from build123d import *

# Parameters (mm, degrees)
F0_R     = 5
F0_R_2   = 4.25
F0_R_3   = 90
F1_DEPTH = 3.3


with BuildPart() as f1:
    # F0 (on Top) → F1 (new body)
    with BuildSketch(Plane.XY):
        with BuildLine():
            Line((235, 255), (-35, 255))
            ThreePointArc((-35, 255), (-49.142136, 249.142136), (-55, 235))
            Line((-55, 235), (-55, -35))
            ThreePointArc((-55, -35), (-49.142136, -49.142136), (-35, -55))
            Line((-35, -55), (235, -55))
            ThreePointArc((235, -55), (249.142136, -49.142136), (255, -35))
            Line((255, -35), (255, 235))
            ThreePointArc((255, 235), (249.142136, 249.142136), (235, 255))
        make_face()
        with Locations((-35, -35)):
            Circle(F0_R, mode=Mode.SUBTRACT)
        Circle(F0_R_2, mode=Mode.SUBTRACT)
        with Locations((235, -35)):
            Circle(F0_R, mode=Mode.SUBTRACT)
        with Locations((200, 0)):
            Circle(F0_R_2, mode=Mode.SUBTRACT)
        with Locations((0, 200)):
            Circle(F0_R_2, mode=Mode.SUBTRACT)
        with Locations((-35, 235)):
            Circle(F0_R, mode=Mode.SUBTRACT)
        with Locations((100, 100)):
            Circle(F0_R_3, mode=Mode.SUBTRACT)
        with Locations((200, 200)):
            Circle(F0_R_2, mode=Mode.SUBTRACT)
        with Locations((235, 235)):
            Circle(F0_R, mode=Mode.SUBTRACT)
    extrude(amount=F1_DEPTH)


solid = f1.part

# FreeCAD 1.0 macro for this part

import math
import FreeCAD as App
import Part
import Sketcher
Q = App.Units.Quantity

doc = App.newDocument("Part")
body = doc.addObject("PartDesign::Body", "Body")

# Sketch on XY plane
sketch1 = body.newObject("Sketcher::SketchObject", "Sketch")
sketch1.AttachmentSupport = (doc.getObject("XY_Plane"), [""])
sketch1.MapMode = "FlatFace"
sketch1.addGeometry(Part.LineSegment(App.Vector(235, 255, 0), App.Vector(-35, 255, 0)), False)
sketch1.addGeometry(Part.ArcOfCircle(Part.Circle(App.Vector(-35, 235, 0), App.Vector(0, 0, 1), 20), math.radians(90), math.radians(180)), False)
sketch1.addGeometry(Part.LineSegment(App.Vector(-55, 235, 0), App.Vector(-55, -35, 0)), False)
sketch1.addGeometry(Part.ArcOfCircle(Part.Circle(App.Vector(-35, -35, 0), App.Vector(0, 0, 1), 20), math.radians(180), math.radians(270)), False)
sketch1.addGeometry(Part.LineSegment(App.Vector(-35, -55, 0), App.Vector(235, -55, 0)), False)
sketch1.addGeometry(Part.ArcOfCircle(Part.Circle(App.Vector(235, -35, 0), App.Vector(0, 0, 1), 20), math.radians(-90), math.radians(0)), False)
sketch1.addGeometry(Part.LineSegment(App.Vector(255, -35, 0), App.Vector(255, 235, 0)), False)
sketch1.addGeometry(Part.ArcOfCircle(Part.Circle(App.Vector(235, 235, 0), App.Vector(0, 0, 1), 20), math.radians(0), math.radians(90)), False)
sketch1.addGeometry(Part.Circle(App.Vector(-35, -35, 0), App.Vector(0, 0, 1), 5), False)
sketch1.addGeometry(Part.Circle(App.Vector(0, 0, 0), App.Vector(0, 0, 1), 4.2), False)
sketch1.addGeometry(Part.Circle(App.Vector(235, -35, 0), App.Vector(0, 0, 1), 5), False)
sketch1.addGeometry(Part.Circle(App.Vector(200, 0, 0), App.Vector(0, 0, 1), 4.2), False)
sketch1.addGeometry(Part.Circle(App.Vector(0, 200, 0), App.Vector(0, 0, 1), 4.2), False)
sketch1.addGeometry(Part.Circle(App.Vector(-35, 235, 0), App.Vector(0, 0, 1), 5), False)
sketch1.addGeometry(Part.Circle(App.Vector(100, 100, 0), App.Vector(0, 0, 1), 90), False)
sketch1.addGeometry(Part.Circle(App.Vector(200, 200, 0), App.Vector(0, 0, 1), 4.2), False)
sketch1.addGeometry(Part.Circle(App.Vector(235, 235, 0), App.Vector(0, 0, 1), 5), False)
sketch1.addConstraint(Sketcher.Constraint("Tangent", 0, 2, 1, 1))
sketch1.addConstraint(Sketcher.Constraint("Tangent", 1, 2, 2, 1))
sketch1.addConstraint(Sketcher.Constraint("Tangent", 2, 2, 3, 1))
sketch1.addConstraint(Sketcher.Constraint("Tangent", 3, 2, 4, 1))
sketch1.addConstraint(Sketcher.Constraint("Tangent", 4, 2, 5, 1))
sketch1.addConstraint(Sketcher.Constraint("Tangent", 5, 2, 6, 1))
sketch1.addConstraint(Sketcher.Constraint("Tangent", 6, 2, 7, 1))
sketch1.addConstraint(Sketcher.Constraint("Tangent", 7, 2, 0, 1))
sketch1.addConstraint(Sketcher.Constraint("Horizontal", 0))
sketch1.addConstraint(Sketcher.Constraint("Vertical", 2))
sketch1.addConstraint(Sketcher.Constraint("Horizontal", 4))
sketch1.addConstraint(Sketcher.Constraint("Vertical", 6))
sketch1.addConstraint(Sketcher.Constraint("Coincident", 9, 3, -1, 1))
sketch1.addConstraint(Sketcher.Constraint("Coincident", 8, 3, 3, 3))
sketch1.addConstraint(Sketcher.Constraint("Coincident", 10, 3, 5, 3))
sketch1.addConstraint(Sketcher.Constraint("Coincident", 13, 3, 1, 3))
sketch1.addConstraint(Sketcher.Constraint("Coincident", 16, 3, 7, 3))
sketch1.addConstraint(Sketcher.Constraint("Equal", 1, 3))
sketch1.addConstraint(Sketcher.Constraint("Equal", 3, 5))
sketch1.addConstraint(Sketcher.Constraint("Equal", 5, 7))
sketch1.addConstraint(Sketcher.Constraint("Equal", 8, 10))
sketch1.addConstraint(Sketcher.Constraint("Equal", 9, 11))
sketch1.addConstraint(Sketcher.Constraint("Equal", 11, 12))
sketch1.addConstraint(Sketcher.Constraint("Equal", 10, 13))
sketch1.addConstraint(Sketcher.Constraint("Equal", 12, 15))
sketch1.addConstraint(Sketcher.Constraint("Equal", 13, 16))
sketch1.addConstraint(Sketcher.Constraint("PointOnObject", 11, 3, -1))
sketch1.addConstraint(Sketcher.Constraint("PointOnObject", 12, 3, -2))
sketch1.addConstraint(Sketcher.Constraint("Horizontal", 12, 3, 15, 3))
sketch1.addConstraint(Sketcher.Constraint("Vertical", 11, 3, 15, 3))
sketch1.addConstraint(Sketcher.Constraint("Equal", 4, 2))
sketch1.addConstraint(Sketcher.Constraint("Diameter", 8, Q("10 mm")))
sketch1.addConstraint(Sketcher.Constraint("Diameter", 14, Q("180 mm")))
sketch1.addConstraint(Sketcher.Constraint("Radius", 1, Q("19.999999 mm")))
sketch1.addConstraint(Sketcher.Constraint("Diameter", 9, Q("8.5 mm")))
sketch1.addConstraint(Sketcher.Constraint("DistanceX", 0, 2, 0, 1, Q("270 mm")))
sketch1.addConstraint(Sketcher.Constraint("DistanceX", 1, 3, -1, 1, Q("35.000001 mm")))
sketch1.addConstraint(Sketcher.Constraint("DistanceY", -1, 1, 1, 3, Q("235.000001 mm")))
sketch1.addConstraint(Sketcher.Constraint("DistanceX", -1, 1, 11, 3, Q("200 mm")))
sketch1.addConstraint(Sketcher.Constraint("DistanceY", -1, 1, 12, 3, Q("200 mm")))
sketch1.addConstraint(Sketcher.Constraint("DistanceX", -1, 1, 14, 3, Q("100 mm")))
sketch1.addConstraint(Sketcher.Constraint("DistanceY", -1, 1, 14, 3, Q("100 mm")))
pad1 = body.newObject("PartDesign::Pad", "Pad")
pad1.Profile = sketch1
pad1.Length = 3.3

doc.recompute()
